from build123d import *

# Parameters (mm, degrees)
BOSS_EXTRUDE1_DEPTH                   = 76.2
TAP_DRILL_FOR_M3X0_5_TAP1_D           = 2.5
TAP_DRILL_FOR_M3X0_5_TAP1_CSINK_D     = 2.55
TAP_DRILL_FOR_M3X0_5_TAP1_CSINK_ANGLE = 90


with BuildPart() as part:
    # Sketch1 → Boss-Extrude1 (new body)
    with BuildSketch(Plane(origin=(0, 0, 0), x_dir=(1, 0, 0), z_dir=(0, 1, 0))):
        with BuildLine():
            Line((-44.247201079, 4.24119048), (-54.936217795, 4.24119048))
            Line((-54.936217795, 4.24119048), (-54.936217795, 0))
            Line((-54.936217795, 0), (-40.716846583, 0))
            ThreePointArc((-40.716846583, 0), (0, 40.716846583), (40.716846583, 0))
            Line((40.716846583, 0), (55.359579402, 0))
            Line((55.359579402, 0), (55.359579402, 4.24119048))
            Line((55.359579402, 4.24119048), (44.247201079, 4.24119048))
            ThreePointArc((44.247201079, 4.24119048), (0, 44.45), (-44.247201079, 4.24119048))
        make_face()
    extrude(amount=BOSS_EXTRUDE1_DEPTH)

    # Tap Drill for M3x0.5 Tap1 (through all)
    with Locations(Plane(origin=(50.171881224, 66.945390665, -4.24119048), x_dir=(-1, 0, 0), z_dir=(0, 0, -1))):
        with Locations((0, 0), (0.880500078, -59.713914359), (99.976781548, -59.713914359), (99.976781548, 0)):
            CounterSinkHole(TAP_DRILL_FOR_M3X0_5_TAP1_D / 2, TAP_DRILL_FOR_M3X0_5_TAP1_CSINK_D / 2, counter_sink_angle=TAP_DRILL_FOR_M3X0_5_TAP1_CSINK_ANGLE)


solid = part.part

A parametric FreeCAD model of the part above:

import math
import FreeCAD as App
import Part
import Sketcher
from FreeCAD import Vector
Q = App.Units.Quantity

doc = App.newDocument("Part")
body = doc.addObject("PartDesign::Body", "Body")

sketch1 = body.newObject("Sketcher::SketchObject", "Sketch")
sketch1.AttachmentSupport = (doc.getObject("XZ_Plane"), [""])
sketch1.MapMode = "FlatFace"
sketch1.addGeometry(Part.LineSegment(Vector(-44.2, -4.2, 0), Vector(-54.9, -4.2, 0)), False)
sketch1.addGeometry(Part.LineSegment(Vector(-54.9, -4.2, 0), Vector(-54.9, 0, 0)), False)
sketch1.addGeometry(Part.LineSegment(Vector(-54.9, 0, 0), Vector(-40.7, 0, 0)), False)
sketch1.addGeometry(Part.ArcOfCircle(Part.Circle(Vector(0, 0, 0), Vector(0, 0, 1), 40.7), math.radians(180), math.radians(360)), False)
sketch1.addGeometry(Part.LineSegment(Vector(40.7, 0, 0), Vector(55.4, 0, 0)), False)
sketch1.addGeometry(Part.LineSegment(Vector(55.4, 0, 0), Vector(55.4, -4.2, 0)), False)
sketch1.addGeometry(Part.LineSegment(Vector(55.4, -4.2, 0), Vector(44.2, -4.2, 0)), False)
sketch1.addGeometry(Part.ArcOfCircle(Part.Circle(Vector(0, 0, 0), Vector(0, 0, 1), 44.5), math.radians(-175), math.radians(-5)), False)
sketch1.addConstraint(Sketcher.Constraint("Coincident", 0, 2, 1, 1))
sketch1.addConstraint(Sketcher.Constraint("Coincident", 1, 2, 2, 1))
sketch1.addConstraint(Sketcher.Constraint("Coincident", 2, 2, 3, 1))
sketch1.addConstraint(Sketcher.Constraint("Coincident", 3, 2, 4, 1))
sketch1.addConstraint(Sketcher.Constraint("Coincident", 4, 2, 5, 1))
sketch1.addConstraint(Sketcher.Constraint("Coincident", 5, 2, 6, 1))
sketch1.addConstraint(Sketcher.Constraint("Coincident", 6, 2, 7, 2))
sketch1.addConstraint(Sketcher.Constraint("Coincident", 7, 1, 0, 1))
sketch1.addConstraint(Sketcher.Constraint("Horizontal", 0))
sketch1.addConstraint(Sketcher.Constraint("Vertical", 1))
sketch1.addConstraint(Sketcher.Constraint("Horizontal", 2))
sketch1.addConstraint(Sketcher.Constraint("Horizontal", 4))
sketch1.addConstraint(Sketcher.Constraint("Vertical", 5))
sketch1.addConstraint(Sketcher.Constraint("Horizontal", 6))
sketch1.addConstraint(Sketcher.Constraint("Coincident", 3, 3, -1, 1))
sketch1.addConstraint(Sketcher.Constraint("Coincident", 7, 3, -1, 1))
sketch1.addConstraint(Sketcher.Constraint("PointOnObject", 1, 2, -1))
sketch1.addConstraint(Sketcher.Constraint("PointOnObject", 3, 2, -1))
sketch1.addConstraint(Sketcher.Constraint("Horizontal", 0, 2, 5, 2))
sketch1.addConstraint(Sketcher.Constraint("Radius", 7, Q("1.75 in")))
sketch1.addConstraint(Sketcher.Constraint("Radius", 3, 40.716847))
sketch1.addConstraint(Sketcher.Constraint("DistanceX", 2, 1, 2, 2, 14.219371))
sketch1.addConstraint(Sketcher.Constraint("DistanceX", 6, 2, 6, 1, 11.112378))
sketch1.addConstraint(Sketcher.Constraint("DistanceY", 1, 1, 1, 2, 4.24119))
pad1 = body.newObject("PartDesign::Pad", "Pad")
pad1.Profile = sketch1
pad1.Length = Q("3 in")
pad1.Reversed = True

sketch2 = body.newObject("Sketcher::SketchObject", "Sketch001")
sketch2.AttachmentSupport = (doc.getObject("XY_Plane"), [""])
sketch2.MapMode = "FlatFace"
sketch2.AttachmentOffset = App.Placement(Vector(0, 0, -4.24119), App.Rotation())
sketch2.addGeometry(Part.Circle(Vector(50.2, 66.9, 0), Vector(0, 0, 1), 1.2), False)
sketch2.addGeometry(Part.Circle(Vector(49.3, 7.2, 0), Vector(0, 0, 1), 1.2), False)
sketch2.addGeometry(Part.Circle(Vector(-49.8, 7.2, 0), Vector(0, 0, 1), 1.2), False)
sketch2.addGeometry(Part.Circle(Vector(-49.8, 66.9, 0), Vector(0, 0, 1), 1.2), False)
sketch2.addConstraint(Sketcher.Constraint("Equal", 0, 1))
sketch2.addConstraint(Sketcher.Constraint("Equal", 1, 2))
sketch2.addConstraint(Sketcher.Constraint("Equal", 2, 3))
sketch2.addConstraint(Sketcher.Constraint("Horizontal", 1, 3, 2, 3))
sketch2.addConstraint(Sketcher.Constraint("Horizontal", 0, 3, 3, 3))
sketch2.addConstraint(Sketcher.Constraint("Vertical", 2, 3, 3, 3))
sketch2.addConstraint(Sketcher.Constraint("Diameter", 0, 2.5))
sketch2.addConstraint(Sketcher.Constraint("DistanceX", 2, 3, -1, 1, 49.8049))
sketch2.addConstraint(Sketcher.Constraint("DistanceX", 1, 3, 0, 3, 0.8805))
sketch2.addConstraint(Sketcher.Constraint("DistanceX", -1, 1, 0, 3, 50.171881))
sketch2.addConstraint(Sketcher.Constraint("DistanceY", -1, 1, 0, 3, 66.945391))
sketch2.addConstraint(Sketcher.Constraint("DistanceY", -1, 1, 1, 3, 7.231476))
doc.recompute()
hole = body.newObject("PartDesign::Hole", "Hole")
hole.Profile = sketch2
hole.ThreadType = "None"
hole.Diameter = 2.5
hole.DepthType = "ThroughAll"
hole.HoleCutType = "Countersink"
hole.HoleCutDiameter = 2.55
hole.HoleCutCountersinkAngle = 90
hole.Reversed = True

doc.recompute()
